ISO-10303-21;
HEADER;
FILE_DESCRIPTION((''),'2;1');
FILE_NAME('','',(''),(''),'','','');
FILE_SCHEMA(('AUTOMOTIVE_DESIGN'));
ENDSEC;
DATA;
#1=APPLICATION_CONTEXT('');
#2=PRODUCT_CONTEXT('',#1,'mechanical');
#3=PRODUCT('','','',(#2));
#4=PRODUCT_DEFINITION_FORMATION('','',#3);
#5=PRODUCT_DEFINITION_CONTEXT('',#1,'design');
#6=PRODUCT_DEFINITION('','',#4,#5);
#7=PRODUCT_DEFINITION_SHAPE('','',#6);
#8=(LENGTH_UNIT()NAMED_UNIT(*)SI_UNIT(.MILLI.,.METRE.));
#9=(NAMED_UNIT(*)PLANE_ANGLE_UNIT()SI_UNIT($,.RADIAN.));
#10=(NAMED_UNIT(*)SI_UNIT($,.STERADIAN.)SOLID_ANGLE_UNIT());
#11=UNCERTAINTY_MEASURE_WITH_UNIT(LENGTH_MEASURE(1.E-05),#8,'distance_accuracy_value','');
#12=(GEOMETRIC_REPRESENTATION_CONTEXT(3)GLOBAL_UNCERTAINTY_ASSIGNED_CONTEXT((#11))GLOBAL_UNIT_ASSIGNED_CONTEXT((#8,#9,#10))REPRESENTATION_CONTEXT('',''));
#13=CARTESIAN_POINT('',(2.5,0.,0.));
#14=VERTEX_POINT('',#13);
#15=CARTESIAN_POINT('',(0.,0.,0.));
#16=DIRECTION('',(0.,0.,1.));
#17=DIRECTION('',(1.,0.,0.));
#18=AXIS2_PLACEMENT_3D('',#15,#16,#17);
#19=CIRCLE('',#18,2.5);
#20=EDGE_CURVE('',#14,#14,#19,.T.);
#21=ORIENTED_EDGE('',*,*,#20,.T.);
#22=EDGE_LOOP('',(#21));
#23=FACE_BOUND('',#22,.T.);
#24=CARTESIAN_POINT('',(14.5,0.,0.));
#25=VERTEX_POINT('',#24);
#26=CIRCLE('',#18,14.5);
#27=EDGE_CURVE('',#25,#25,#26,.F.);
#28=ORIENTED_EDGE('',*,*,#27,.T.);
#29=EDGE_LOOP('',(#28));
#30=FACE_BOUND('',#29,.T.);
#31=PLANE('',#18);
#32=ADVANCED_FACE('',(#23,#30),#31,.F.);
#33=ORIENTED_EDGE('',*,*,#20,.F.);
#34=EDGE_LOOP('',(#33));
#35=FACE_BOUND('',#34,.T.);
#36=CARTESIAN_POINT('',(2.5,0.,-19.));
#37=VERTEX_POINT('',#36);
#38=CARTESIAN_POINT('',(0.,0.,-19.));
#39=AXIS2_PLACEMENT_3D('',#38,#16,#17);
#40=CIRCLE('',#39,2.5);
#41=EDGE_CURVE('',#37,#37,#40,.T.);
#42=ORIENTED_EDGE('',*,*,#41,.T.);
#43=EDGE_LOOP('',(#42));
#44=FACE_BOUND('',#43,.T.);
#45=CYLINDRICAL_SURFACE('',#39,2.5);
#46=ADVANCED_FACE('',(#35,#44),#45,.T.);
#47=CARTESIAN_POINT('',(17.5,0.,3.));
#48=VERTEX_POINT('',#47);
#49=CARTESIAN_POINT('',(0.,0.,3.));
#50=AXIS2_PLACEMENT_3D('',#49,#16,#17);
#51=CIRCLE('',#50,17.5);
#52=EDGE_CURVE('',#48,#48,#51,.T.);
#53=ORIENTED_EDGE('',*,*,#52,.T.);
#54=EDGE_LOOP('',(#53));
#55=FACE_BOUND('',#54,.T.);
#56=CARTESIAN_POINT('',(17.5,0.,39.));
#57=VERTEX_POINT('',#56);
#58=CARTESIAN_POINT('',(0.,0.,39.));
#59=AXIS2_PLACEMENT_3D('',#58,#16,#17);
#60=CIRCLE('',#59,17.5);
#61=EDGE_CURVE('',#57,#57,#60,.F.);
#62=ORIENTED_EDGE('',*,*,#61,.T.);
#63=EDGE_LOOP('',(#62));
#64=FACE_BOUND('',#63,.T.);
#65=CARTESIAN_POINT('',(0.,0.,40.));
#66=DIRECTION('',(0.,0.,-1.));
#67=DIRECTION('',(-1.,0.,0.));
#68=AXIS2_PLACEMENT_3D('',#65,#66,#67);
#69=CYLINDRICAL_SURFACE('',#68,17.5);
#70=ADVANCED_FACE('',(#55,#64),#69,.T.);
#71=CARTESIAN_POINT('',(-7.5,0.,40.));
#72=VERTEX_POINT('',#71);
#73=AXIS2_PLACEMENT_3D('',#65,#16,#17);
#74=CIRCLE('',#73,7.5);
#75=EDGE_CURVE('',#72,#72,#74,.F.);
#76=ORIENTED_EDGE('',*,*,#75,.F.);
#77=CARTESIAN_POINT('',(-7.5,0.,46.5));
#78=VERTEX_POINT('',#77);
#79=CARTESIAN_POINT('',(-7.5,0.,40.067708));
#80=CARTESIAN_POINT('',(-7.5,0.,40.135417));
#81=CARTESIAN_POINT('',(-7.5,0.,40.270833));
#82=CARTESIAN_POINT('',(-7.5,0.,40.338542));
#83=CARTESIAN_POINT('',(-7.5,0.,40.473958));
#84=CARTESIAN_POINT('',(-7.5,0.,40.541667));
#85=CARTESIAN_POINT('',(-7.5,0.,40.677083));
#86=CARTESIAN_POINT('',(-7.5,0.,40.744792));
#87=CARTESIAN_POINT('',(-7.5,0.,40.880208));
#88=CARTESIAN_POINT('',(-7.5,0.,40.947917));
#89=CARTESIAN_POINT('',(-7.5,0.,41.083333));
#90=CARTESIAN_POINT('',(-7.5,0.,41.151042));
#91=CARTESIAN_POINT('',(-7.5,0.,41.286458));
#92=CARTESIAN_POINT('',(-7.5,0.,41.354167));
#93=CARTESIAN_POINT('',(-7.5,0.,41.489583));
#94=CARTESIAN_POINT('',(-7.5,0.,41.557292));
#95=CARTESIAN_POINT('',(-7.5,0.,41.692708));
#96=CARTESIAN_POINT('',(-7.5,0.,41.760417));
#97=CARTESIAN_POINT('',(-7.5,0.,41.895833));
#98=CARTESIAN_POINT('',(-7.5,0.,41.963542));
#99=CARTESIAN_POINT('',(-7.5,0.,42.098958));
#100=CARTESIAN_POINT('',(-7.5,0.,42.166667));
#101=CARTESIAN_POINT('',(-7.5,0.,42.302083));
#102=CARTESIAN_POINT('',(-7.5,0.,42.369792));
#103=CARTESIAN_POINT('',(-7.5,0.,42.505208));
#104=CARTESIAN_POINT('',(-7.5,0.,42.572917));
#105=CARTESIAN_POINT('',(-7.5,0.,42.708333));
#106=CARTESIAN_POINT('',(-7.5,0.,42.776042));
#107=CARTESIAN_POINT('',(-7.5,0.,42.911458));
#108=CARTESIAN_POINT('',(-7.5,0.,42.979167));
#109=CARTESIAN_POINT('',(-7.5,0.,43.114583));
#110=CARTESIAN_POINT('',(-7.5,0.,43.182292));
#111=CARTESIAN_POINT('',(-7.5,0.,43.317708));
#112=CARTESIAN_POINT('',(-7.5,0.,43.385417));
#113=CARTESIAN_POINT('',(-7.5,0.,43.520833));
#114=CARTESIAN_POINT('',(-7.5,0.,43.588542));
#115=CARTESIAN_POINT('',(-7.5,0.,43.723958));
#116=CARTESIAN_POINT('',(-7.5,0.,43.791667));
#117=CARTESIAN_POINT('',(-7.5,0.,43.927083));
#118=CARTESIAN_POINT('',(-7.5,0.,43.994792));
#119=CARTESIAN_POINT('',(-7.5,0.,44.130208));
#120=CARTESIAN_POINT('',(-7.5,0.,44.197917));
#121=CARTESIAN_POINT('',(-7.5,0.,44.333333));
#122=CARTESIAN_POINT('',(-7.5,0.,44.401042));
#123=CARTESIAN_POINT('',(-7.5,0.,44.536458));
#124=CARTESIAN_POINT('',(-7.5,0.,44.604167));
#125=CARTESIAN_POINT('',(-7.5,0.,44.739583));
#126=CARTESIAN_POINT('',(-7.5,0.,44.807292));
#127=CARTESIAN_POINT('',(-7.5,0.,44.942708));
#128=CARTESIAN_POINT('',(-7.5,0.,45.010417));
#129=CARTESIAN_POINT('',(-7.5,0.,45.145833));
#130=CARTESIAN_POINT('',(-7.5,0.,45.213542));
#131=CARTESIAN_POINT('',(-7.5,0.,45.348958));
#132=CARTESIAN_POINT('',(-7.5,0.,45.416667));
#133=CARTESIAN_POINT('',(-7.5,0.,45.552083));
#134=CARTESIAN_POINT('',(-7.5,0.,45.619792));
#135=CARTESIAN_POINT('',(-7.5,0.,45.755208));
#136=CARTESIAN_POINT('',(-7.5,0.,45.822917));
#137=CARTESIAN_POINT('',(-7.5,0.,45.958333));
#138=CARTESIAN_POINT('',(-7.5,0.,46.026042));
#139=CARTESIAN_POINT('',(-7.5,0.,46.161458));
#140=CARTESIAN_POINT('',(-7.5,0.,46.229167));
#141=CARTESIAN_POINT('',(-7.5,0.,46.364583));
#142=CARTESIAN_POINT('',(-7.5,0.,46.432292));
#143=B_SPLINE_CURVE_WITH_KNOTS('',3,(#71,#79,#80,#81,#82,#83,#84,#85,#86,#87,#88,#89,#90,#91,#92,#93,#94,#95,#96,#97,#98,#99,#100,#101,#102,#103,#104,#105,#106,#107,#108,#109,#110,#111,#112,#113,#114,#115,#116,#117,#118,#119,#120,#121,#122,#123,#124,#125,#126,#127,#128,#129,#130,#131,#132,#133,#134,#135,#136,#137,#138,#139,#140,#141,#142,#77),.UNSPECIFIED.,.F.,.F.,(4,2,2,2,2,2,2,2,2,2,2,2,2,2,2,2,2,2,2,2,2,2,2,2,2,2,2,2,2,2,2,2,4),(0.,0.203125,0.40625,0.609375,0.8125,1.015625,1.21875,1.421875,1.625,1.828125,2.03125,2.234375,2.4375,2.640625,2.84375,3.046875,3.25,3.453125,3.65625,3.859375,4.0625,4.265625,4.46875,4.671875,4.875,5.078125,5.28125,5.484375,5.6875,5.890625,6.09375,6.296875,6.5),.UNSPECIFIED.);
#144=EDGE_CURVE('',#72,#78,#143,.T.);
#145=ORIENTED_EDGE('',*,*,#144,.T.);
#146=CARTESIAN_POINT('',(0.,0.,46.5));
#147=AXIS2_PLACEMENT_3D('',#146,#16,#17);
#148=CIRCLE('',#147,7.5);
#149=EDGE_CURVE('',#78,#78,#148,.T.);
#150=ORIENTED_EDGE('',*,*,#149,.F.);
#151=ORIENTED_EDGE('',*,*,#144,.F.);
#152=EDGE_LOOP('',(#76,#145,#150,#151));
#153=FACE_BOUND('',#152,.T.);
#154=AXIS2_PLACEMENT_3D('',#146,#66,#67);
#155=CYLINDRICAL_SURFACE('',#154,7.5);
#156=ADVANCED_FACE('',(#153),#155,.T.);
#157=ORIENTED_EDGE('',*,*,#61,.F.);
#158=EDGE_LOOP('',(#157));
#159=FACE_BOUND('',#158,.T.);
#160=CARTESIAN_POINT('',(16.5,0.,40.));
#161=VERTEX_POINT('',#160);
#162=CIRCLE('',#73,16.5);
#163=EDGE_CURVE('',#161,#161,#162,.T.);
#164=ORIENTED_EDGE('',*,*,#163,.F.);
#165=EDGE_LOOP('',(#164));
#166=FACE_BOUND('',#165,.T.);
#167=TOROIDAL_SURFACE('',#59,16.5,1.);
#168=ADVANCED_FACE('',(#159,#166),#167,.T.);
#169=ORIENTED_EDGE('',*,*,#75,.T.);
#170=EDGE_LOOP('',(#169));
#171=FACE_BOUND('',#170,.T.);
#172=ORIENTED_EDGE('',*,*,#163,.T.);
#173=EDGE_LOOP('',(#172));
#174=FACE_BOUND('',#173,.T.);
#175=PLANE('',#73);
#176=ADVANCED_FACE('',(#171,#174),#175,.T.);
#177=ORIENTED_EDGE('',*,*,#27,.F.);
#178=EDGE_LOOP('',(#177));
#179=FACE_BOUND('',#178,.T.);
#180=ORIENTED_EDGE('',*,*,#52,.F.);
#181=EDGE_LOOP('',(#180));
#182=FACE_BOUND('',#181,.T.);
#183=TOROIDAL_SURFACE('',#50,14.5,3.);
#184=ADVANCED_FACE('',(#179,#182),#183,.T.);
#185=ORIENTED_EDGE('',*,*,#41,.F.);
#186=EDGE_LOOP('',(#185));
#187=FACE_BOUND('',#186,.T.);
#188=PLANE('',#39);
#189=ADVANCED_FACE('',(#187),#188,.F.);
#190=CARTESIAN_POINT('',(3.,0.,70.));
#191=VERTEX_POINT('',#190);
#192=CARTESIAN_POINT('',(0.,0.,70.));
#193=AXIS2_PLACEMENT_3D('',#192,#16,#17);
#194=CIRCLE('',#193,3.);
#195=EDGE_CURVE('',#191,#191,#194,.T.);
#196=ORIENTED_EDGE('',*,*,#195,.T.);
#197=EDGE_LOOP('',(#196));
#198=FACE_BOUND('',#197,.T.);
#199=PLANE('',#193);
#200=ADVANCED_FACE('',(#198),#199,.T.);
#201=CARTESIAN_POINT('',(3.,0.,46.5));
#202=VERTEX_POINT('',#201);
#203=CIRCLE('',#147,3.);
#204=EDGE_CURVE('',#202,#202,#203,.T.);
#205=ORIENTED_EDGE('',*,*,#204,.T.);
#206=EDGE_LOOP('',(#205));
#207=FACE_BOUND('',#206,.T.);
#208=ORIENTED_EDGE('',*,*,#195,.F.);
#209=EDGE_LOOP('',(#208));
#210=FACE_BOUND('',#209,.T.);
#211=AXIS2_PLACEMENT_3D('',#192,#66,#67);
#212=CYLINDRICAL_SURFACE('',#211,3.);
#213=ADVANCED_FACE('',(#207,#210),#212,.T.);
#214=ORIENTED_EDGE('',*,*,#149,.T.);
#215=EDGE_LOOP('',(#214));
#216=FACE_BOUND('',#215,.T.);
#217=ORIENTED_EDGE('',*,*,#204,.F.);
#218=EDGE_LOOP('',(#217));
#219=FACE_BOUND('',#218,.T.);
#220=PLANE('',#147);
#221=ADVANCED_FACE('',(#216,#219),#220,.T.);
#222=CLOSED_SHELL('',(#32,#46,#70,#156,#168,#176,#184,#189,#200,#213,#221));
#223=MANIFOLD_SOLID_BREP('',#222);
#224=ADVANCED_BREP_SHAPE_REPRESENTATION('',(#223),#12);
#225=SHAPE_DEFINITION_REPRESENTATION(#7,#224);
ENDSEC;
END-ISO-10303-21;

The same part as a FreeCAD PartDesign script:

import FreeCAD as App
import Part
import Sketcher
Q = App.Units.Quantity


def edges_at(feature, points):
    """Names of the edges that pass closest to the given points."""
    edges = feature.Shape.Edges
    near = lambda p: min(range(len(edges)), key=lambda i: edges[i].distToShape(Part.Vertex(*p))[0])
    return sorted({f"Edge{near(p) + 1}" for p in points})

doc = App.newDocument("Part")
params = doc.addObject("Spreadsheet::Sheet", "Params")
for row, (alias, value) in enumerate([
    ("sketch1_diameter", "35 mm"),
    ("pad1_length", "40 mm"),
    ("sketch2_diameter", "5 mm"),
    ("pad2_length", "19 mm"),
    ("sketch3_diameter", "11 mm"),
    ("pad3_length", "42 mm"),
    ("sketch4_diameter", "6 mm"),
    ("pad4_length", "70 mm"),
    ("sketch5_diameter", "15 mm"),
    ("pad5_length", "46.5 mm"),
    ("fillet_radius", "1 mm"),
    ("fillet2_radius", "3 mm"),
], start=1):
    params.set(f"A{row}", alias)
    params.set(f"B{row}", "=" + value)
    params.setAlias(f"B{row}", alias)

body = doc.addObject("PartDesign::Body", "Body")

sketch1 = body.newObject("Sketcher::SketchObject", "Sketch")
sketch1.AttachmentSupport = (doc.getObject("XY_Plane"), [""])
sketch1.MapMode = "FlatFace"
sketch1.addGeometry(Part.Circle(App.Vector(0, 0, 0), App.Vector(0, 0, 1), 17.5), False)
sketch1.addConstraint([
    Sketcher.Constraint("Coincident", 0, 3, -1, 1),
    Sketcher.Constraint("Diameter", 0, Q("35 mm")),
])
sketch1.setExpression("Constraints[1]", "Params.sketch1_diameter")
pad1 = body.newObject("PartDesign::Pad", "Pad")
pad1.Profile = sketch1
pad1.setExpression("Length", "Params.pad1_length")

sketch2 = body.newObject("Sketcher::SketchObject", "Sketch001")
sketch2.AttachmentSupport = (doc.getObject("XY_Plane"), [""])
sketch2.MapMode = "FlatFace"
sketch2.addGeometry(Part.Circle(App.Vector(0, 0, 0), App.Vector(0, 0, 1), 2.5), False)
sketch2.addConstraint([
    Sketcher.Constraint("Coincident", 0, 3, -1, 1),
    Sketcher.Constraint("Diameter", 0, Q("5 mm")),
])
sketch2.setExpression("Constraints[1]", "Params.sketch2_diameter")
pad2 = body.newObject("PartDesign::Pad", "Pad001")
pad2.Profile = sketch2
pad2.setExpression("Length", "Params.pad2_length")
pad2.Reversed = True

sketch3 = body.newObject("Sketcher::SketchObject", "Sketch002")
sketch3.AttachmentSupport = (doc.getObject("XY_Plane"), [""])
sketch3.MapMode = "FlatFace"
sketch3.addGeometry(Part.Circle(App.Vector(0, 0, 0), App.Vector(0, 0, 1), 5.5), False)
sketch3.addConstraint([
    Sketcher.Constraint("Coincident", 0, 3, -1, 1),
    Sketcher.Constraint("Diameter", 0, Q("11 mm")),
])
sketch3.setExpression("Constraints[1]", "Params.sketch3_diameter")
pad3 = body.newObject("PartDesign::Pad", "Pad002")
pad3.Profile = sketch3
pad3.setExpression("Length", "Params.pad3_length")

sketch4 = body.newObject("Sketcher::SketchObject", "Sketch003")
sketch4.AttachmentSupport = (doc.getObject("XY_Plane"), [""])
sketch4.MapMode = "FlatFace"
sketch4.addGeometry(Part.Circle(App.Vector(0, 0, 0), App.Vector(0, 0, 1), 3), False)
sketch4.addConstraint([
    Sketcher.Constraint("Coincident", 0, 3, -1, 1),
    Sketcher.Constraint("Diameter", 0, Q("6 mm")),
])
sketch4.setExpression("Constraints[1]", "Params.sketch4_diameter")
pad4 = body.newObject("PartDesign::Pad", "Pad003")
pad4.Profile = sketch4
pad4.setExpression("Length", "Params.pad4_length")

sketch5 = body.newObject("Sketcher::SketchObject", "Sketch004")
sketch5.AttachmentSupport = (doc.getObject("XY_Plane"), [""])
sketch5.MapMode = "FlatFace"
sketch5.addGeometry(Part.Circle(App.Vector(0, 0, 0), App.Vector(0, 0, 1), 7.5), False)
sketch5.addConstraint([
    Sketcher.Constraint("Coincident", 0, 3, -1, 1),
    Sketcher.Constraint("Diameter", 0, Q("15 mm")),
])
sketch5.setExpression("Constraints[1]", "Params.sketch5_diameter")
pad5 = body.newObject("PartDesign::Pad", "Pad004")
pad5.Profile = sketch5
pad5.setExpression("Length", "Params.pad5_length")
doc.recompute()

fillet = body.newObject("PartDesign::Fillet", "Fillet")
fillet.Base = (pad5, edges_at(pad5, [(-17.5, 0, 40)]))
fillet.setExpression("Radius", "Params.fillet_radius")
doc.recompute()

fillet2 = body.newObject("PartDesign::Fillet", "Fillet001")
fillet2.Base = (fillet, edges_at(fillet, [(-17.5, 0, 0)]))
fillet2.setExpression("Radius", "Params.fillet2_radius")

doc.recompute()
